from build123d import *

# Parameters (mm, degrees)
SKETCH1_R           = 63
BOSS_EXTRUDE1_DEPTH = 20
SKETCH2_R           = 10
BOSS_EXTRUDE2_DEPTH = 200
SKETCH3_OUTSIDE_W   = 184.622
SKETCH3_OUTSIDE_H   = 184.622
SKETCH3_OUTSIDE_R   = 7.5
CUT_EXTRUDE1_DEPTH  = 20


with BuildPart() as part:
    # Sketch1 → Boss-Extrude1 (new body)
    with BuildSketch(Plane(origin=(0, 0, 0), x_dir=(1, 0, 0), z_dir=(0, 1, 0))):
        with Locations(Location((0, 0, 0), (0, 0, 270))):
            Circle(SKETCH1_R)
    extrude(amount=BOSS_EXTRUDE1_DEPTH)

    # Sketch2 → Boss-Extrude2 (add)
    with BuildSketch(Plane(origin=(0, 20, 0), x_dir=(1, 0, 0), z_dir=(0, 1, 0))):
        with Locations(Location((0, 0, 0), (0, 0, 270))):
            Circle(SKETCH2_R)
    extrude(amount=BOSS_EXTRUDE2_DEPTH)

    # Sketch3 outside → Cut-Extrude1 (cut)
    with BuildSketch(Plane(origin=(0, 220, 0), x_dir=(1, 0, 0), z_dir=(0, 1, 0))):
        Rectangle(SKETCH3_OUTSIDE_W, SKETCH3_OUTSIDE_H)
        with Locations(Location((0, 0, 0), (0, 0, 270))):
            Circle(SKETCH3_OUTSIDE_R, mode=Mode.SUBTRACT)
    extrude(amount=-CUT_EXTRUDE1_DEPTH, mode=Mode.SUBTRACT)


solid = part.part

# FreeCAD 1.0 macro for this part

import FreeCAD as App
import Part
import Sketcher

V = App.Vector


def add_polygon(sketch, points):
    """Adds a closed chain of lines whose ends are joined by coincident constraints."""
    first, n = sketch.GeometryCount, len(points)
    for a, b in zip(points, points[1:] + points[:1]):
        sketch.addGeometry(Part.LineSegment(App.Vector(*a, 0), App.Vector(*b, 0)), False)
    for i in range(n):
        sketch.addConstraint(Sketcher.Constraint("Coincident", first + i, 2, first + (i + 1) % n, 1))

doc = App.newDocument("Part")
body = doc.addObject("PartDesign::Body", "Body")

# Sketch on XZ plane
sketch1 = body.newObject("Sketcher::SketchObject", "Sketch")
sketch1.AttachmentSupport = (doc.getObject("XZ_Plane"), [""])
sketch1.MapMode = "FlatFace"
sketch1.addGeometry(Part.Circle(V(0, 0, 0), V(0, 0, 1), 63), False)
sketch1.addConstraint(Sketcher.Constraint("Coincident", 0, 3, -1, 1))
sketch1.addConstraint(Sketcher.Constraint("Diameter", 0, 126.0))
pad1 = body.newObject("PartDesign::Pad", "Pad")
pad1.Profile = sketch1
pad1.Length = 20
pad1.Reversed = True

# Sketch on XZ plane
sketch2 = body.newObject("Sketcher::SketchObject", "Sketch001")
sketch2.AttachmentSupport = (doc.getObject("XZ_Plane"), [""])
sketch2.MapMode = "FlatFace"
sketch2.AttachmentOffset = App.Placement(V(0, 0, -20), App.Rotation())
sketch2.addGeometry(Part.Circle(V(0, 0, 0), V(0, 0, 1), 10), False)
sketch2.addConstraint(Sketcher.Constraint("Coincident", 0, 3, -1, 1))
sketch2.addConstraint(Sketcher.Constraint("Diameter", 0, 20.0))
pad2 = body.newObject("PartDesign::Pad", "Pad001")
pad2.Profile = sketch2
pad2.Length = 200
pad2.Reversed = True

# Sketch on XZ plane
sketch3 = body.newObject("Sketcher::SketchObject", "Sketch002")
sketch3.AttachmentSupport = (doc.getObject("XZ_Plane"), [""])
sketch3.MapMode = "FlatFace"
sketch3.AttachmentOffset = App.Placement(V(0, 0, -220), App.Rotation())
add_polygon(sketch3, [(-92.311, -92.311), (-92.311, 92.311), (92.311, 92.311), (92.311, -92.311)])  # lines 0-3
sketch3.addGeometry(Part.Circle(V(0, 0, 0), V(0, 0, 1), 7.5), False)  # 4
sketch3.addConstraint(Sketcher.Constraint("Vertical", 0))
sketch3.addConstraint(Sketcher.Constraint("Horizontal", 1))
sketch3.addConstraint(Sketcher.Constraint("Vertical", 2))
sketch3.addConstraint(Sketcher.Constraint("Horizontal", 3))
sketch3.addConstraint(Sketcher.Constraint("Coincident", 4, 3, -1, 1))
sketch3.addConstraint(Sketcher.Constraint("Symmetric", 0, 2, 2, 2, -1, 1))
sketch3.addConstraint(Sketcher.Constraint("Equal", 3, 0))
sketch3.addConstraint(Sketcher.Constraint("Diameter", 4, 15.0))
sketch3.addConstraint(Sketcher.Constraint("DistanceX", 1, 1, 1, 2, 184.622))
pocket1 = body.newObject("PartDesign::Pocket", "Pocket")
pocket1.Profile = sketch3
pocket1.Length = 20
pocket1.Reversed = True

doc.recompute()
